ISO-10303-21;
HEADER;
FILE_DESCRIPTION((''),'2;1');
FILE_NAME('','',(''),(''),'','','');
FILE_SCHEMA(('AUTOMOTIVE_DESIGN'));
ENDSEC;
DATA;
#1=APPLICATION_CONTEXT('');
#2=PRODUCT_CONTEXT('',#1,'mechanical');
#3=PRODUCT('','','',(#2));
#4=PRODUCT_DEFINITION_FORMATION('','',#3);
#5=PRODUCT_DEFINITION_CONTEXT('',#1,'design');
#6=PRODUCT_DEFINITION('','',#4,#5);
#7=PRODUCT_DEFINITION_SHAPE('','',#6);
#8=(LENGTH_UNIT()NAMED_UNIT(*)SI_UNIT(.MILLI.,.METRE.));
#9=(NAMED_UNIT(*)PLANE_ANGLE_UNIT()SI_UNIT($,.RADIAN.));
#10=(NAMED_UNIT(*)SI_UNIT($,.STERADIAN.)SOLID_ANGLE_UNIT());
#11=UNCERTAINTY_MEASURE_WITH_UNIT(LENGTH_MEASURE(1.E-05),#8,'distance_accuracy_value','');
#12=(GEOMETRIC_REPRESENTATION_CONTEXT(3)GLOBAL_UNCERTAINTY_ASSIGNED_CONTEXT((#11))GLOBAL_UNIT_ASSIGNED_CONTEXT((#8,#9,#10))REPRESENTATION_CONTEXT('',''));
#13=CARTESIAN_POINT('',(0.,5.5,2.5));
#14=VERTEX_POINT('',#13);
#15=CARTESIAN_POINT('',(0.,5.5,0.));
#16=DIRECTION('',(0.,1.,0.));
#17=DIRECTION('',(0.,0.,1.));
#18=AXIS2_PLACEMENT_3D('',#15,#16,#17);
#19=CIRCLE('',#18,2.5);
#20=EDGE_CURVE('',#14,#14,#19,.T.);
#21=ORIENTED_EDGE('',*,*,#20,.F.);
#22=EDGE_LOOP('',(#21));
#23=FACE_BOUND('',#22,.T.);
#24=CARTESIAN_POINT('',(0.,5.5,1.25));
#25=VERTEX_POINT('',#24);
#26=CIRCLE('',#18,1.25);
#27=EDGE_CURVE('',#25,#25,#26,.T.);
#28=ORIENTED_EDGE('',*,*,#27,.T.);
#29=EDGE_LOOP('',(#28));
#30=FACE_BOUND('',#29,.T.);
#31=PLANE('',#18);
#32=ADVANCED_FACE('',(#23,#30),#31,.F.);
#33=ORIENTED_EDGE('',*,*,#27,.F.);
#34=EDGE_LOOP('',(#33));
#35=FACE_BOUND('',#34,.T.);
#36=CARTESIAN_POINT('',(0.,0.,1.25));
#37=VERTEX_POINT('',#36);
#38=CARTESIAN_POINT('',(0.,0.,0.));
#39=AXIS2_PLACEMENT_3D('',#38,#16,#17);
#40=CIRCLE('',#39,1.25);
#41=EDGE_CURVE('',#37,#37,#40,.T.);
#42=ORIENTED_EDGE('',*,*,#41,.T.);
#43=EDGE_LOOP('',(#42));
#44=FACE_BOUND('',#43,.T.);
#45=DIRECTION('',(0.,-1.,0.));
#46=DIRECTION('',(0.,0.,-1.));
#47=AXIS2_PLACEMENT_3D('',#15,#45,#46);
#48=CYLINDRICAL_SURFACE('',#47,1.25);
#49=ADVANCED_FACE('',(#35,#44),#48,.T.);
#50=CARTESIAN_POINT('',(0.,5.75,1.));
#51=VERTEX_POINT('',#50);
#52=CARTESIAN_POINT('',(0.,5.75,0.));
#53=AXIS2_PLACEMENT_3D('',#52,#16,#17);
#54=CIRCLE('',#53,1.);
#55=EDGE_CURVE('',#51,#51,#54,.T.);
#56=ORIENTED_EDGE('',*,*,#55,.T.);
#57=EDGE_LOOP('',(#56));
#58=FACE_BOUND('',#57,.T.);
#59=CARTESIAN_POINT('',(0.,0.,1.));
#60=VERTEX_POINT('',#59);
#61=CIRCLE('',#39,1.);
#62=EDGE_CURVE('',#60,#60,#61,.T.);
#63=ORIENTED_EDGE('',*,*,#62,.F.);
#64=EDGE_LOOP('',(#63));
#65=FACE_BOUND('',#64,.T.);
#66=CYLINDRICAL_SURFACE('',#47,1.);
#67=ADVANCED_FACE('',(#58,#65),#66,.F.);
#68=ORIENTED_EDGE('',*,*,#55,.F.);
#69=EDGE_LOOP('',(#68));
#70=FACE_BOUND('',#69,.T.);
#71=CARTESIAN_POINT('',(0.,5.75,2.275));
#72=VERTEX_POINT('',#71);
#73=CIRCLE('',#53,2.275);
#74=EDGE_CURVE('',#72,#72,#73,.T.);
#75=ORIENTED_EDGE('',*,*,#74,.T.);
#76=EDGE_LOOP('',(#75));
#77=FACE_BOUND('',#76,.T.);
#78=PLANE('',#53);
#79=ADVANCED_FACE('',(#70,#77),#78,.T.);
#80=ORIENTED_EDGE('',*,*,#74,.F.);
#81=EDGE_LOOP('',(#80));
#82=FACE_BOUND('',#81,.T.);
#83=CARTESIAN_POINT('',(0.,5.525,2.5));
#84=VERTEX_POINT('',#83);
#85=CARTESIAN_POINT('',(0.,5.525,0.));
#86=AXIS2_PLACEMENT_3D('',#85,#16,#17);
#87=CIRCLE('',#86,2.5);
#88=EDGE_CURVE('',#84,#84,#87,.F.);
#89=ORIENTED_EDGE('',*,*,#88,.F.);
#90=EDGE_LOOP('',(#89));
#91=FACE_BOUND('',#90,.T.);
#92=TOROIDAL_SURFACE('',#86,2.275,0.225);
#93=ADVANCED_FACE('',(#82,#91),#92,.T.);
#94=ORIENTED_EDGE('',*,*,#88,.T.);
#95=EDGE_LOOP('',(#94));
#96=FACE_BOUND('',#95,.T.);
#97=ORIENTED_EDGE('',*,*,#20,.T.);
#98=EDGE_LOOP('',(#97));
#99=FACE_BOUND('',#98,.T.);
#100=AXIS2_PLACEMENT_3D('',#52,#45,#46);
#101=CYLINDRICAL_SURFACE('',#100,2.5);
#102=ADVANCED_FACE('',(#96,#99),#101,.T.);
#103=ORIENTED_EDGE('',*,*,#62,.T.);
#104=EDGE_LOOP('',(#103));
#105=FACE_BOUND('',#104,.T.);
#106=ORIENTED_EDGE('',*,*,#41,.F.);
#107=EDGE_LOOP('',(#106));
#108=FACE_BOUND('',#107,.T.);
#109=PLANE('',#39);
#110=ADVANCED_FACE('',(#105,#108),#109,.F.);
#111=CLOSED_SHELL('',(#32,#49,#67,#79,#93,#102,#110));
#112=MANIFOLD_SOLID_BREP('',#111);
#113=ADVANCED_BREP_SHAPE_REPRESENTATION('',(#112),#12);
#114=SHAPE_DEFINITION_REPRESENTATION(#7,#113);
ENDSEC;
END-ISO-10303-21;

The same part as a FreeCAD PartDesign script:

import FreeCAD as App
import Part
import Sketcher

V = App.Vector


def edges_at(feature, points):
    """Names of the edges that pass closest to the given points."""
    edges = feature.Shape.Edges
    near = lambda p: min(range(len(edges)), key=lambda i: edges[i].distToShape(Part.Vertex(*p))[0])
    return sorted({f"Edge{near(p) + 1}" for p in points})

doc = App.newDocument("Part")
body = doc.addObject("PartDesign::Body", "Body")

# Sketch on XZ plane
sketch1 = doc.addObject("Sketcher::SketchObject", "Sketch")
body.addObject(sketch1)
sketch1.AttachmentSupport = (doc.XZ_Plane, [""])
sketch1.MapMode = "FlatFace"
sketch1.addGeometry([
    Part.Circle(V(0, 0, 0), V(0, 0, 1), 1.2),
    Part.Circle(V(0, 0, 0), V(0, 0, 1), 1),
], False)
sketch1.addConstraint([
    Sketcher.Constraint("Coincident", 0, 3, -1, 1),
    Sketcher.Constraint("Coincident", 1, 3, -1, 1),
    Sketcher.Constraint("Diameter", 1, 2.0),
    Sketcher.Constraint("Diameter", 0, 2.5),
])
pad1 = doc.addObject("PartDesign::Pad", "Pad")
body.addObject(pad1)
pad1.Profile = sketch1
pad1.Length = 5.5
pad1.Reversed = True

# Sketch on XZ plane
sketch2 = doc.addObject("Sketcher::SketchObject", "Sketch001")
body.addObject(sketch2)
sketch2.AttachmentSupport = (doc.XZ_Plane, [""])
sketch2.MapMode = "FlatFace"
sketch2.AttachmentOffset = App.Placement(V(0, 0, -5.5), App.Rotation())
sketch2.addGeometry([
    Part.Circle(V(0, 0, 0), V(0, 0, 1), 2.5),
    Part.Circle(V(0, 0, 0), V(0, 0, 1), 1),
], False)
sketch2.addConstraint([
    Sketcher.Constraint("Coincident", 0, 3, -1, 1),
    Sketcher.Constraint("Coincident", 1, 3, -1, 1),
    Sketcher.Constraint("Diameter", 0, 5.0),
    Sketcher.Constraint("Diameter", 1, 2.0),
])
pad2 = doc.addObject("PartDesign::Pad", "Pad001")
body.addObject(pad2)
pad2.Profile = sketch2
pad2.Length = 0.25
pad2.Reversed = True
doc.recompute()

fillet = doc.addObject("PartDesign::Fillet", "Fillet")
body.addObject(fillet)
fillet.Base = (pad2, edges_at(pad2, [(-2.5, 5.75, 0)]))
fillet.Radius = 0.225

doc.recompute()
